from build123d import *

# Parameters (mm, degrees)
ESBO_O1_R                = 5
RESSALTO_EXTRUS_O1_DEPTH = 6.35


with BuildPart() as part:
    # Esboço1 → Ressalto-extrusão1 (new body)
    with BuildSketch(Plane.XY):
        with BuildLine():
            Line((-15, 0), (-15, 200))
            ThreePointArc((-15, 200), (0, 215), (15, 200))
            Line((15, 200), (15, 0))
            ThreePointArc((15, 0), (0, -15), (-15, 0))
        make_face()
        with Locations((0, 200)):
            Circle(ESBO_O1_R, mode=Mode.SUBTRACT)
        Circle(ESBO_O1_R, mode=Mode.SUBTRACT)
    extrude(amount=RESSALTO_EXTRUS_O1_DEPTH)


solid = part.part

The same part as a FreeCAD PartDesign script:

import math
import FreeCAD as App
import Part
import Sketcher
Q = App.Units.Quantity

doc = App.newDocument("Part")
body = doc.addObject("PartDesign::Body", "Body")

# Sketch on XY plane
sketch1 = body.newObject("Sketcher::SketchObject", "Sketch")
sketch1.AttachmentSupport = (doc.getObject("XY_Plane"), [""])
sketch1.MapMode = "FlatFace"
sketch1.addGeometry(Part.LineSegment(App.Vector(-15, 200, 0), App.Vector(-15, 0, 0)), False)
sketch1.addGeometry(Part.ArcOfCircle(Part.Circle(App.Vector(0, 0, 0), App.Vector(0, 0, 1), 15), math.radians(180), math.radians(360)), False)
sketch1.addGeometry(Part.LineSegment(App.Vector(15, 0, 0), App.Vector(15, 200, 0)), False)
sketch1.addGeometry(Part.ArcOfCircle(Part.Circle(App.Vector(0, 200, 0), App.Vector(0, 0, 1), 15), math.radians(0), math.radians(180)), False)
sketch1.addGeometry(Part.Circle(App.Vector(0, 0, 0), App.Vector(0, 0, 1), 5), False)
sketch1.addGeometry(Part.Circle(App.Vector(0, 200, 0), App.Vector(0, 0, 1), 5), False)
sketch1.addConstraint(Sketcher.Constraint("Tangent", 0, 2, 1, 1))
sketch1.addConstraint(Sketcher.Constraint("Tangent", 1, 2, 2, 1))
sketch1.addConstraint(Sketcher.Constraint("Tangent", 2, 2, 3, 1))
sketch1.addConstraint(Sketcher.Constraint("Tangent", 3, 2, 0, 1))
sketch1.addConstraint(Sketcher.Constraint("Vertical", 0))
sketch1.addConstraint(Sketcher.Constraint("Vertical", 2))
sketch1.addConstraint(Sketcher.Constraint("Coincident", 1, 3, -1, 1))
sketch1.addConstraint(Sketcher.Constraint("Coincident", 4, 3, -1, 1))
sketch1.addConstraint(Sketcher.Constraint("Coincident", 5, 3, 3, 3))
sketch1.addConstraint(Sketcher.Constraint("Equal", 4, 5))
sketch1.addConstraint(Sketcher.Constraint("Diameter", 4, Q("10 mm")))
sketch1.addConstraint(Sketcher.Constraint("Radius", 1, Q("15 mm")))
sketch1.addConstraint(Sketcher.Constraint("DistanceY", 0, 2, 0, 1, Q("200 mm")))
pad1 = body.newObject("PartDesign::Pad", "Pad")
pad1.Profile = sketch1
pad1.Length = 6.35

doc.recompute()
